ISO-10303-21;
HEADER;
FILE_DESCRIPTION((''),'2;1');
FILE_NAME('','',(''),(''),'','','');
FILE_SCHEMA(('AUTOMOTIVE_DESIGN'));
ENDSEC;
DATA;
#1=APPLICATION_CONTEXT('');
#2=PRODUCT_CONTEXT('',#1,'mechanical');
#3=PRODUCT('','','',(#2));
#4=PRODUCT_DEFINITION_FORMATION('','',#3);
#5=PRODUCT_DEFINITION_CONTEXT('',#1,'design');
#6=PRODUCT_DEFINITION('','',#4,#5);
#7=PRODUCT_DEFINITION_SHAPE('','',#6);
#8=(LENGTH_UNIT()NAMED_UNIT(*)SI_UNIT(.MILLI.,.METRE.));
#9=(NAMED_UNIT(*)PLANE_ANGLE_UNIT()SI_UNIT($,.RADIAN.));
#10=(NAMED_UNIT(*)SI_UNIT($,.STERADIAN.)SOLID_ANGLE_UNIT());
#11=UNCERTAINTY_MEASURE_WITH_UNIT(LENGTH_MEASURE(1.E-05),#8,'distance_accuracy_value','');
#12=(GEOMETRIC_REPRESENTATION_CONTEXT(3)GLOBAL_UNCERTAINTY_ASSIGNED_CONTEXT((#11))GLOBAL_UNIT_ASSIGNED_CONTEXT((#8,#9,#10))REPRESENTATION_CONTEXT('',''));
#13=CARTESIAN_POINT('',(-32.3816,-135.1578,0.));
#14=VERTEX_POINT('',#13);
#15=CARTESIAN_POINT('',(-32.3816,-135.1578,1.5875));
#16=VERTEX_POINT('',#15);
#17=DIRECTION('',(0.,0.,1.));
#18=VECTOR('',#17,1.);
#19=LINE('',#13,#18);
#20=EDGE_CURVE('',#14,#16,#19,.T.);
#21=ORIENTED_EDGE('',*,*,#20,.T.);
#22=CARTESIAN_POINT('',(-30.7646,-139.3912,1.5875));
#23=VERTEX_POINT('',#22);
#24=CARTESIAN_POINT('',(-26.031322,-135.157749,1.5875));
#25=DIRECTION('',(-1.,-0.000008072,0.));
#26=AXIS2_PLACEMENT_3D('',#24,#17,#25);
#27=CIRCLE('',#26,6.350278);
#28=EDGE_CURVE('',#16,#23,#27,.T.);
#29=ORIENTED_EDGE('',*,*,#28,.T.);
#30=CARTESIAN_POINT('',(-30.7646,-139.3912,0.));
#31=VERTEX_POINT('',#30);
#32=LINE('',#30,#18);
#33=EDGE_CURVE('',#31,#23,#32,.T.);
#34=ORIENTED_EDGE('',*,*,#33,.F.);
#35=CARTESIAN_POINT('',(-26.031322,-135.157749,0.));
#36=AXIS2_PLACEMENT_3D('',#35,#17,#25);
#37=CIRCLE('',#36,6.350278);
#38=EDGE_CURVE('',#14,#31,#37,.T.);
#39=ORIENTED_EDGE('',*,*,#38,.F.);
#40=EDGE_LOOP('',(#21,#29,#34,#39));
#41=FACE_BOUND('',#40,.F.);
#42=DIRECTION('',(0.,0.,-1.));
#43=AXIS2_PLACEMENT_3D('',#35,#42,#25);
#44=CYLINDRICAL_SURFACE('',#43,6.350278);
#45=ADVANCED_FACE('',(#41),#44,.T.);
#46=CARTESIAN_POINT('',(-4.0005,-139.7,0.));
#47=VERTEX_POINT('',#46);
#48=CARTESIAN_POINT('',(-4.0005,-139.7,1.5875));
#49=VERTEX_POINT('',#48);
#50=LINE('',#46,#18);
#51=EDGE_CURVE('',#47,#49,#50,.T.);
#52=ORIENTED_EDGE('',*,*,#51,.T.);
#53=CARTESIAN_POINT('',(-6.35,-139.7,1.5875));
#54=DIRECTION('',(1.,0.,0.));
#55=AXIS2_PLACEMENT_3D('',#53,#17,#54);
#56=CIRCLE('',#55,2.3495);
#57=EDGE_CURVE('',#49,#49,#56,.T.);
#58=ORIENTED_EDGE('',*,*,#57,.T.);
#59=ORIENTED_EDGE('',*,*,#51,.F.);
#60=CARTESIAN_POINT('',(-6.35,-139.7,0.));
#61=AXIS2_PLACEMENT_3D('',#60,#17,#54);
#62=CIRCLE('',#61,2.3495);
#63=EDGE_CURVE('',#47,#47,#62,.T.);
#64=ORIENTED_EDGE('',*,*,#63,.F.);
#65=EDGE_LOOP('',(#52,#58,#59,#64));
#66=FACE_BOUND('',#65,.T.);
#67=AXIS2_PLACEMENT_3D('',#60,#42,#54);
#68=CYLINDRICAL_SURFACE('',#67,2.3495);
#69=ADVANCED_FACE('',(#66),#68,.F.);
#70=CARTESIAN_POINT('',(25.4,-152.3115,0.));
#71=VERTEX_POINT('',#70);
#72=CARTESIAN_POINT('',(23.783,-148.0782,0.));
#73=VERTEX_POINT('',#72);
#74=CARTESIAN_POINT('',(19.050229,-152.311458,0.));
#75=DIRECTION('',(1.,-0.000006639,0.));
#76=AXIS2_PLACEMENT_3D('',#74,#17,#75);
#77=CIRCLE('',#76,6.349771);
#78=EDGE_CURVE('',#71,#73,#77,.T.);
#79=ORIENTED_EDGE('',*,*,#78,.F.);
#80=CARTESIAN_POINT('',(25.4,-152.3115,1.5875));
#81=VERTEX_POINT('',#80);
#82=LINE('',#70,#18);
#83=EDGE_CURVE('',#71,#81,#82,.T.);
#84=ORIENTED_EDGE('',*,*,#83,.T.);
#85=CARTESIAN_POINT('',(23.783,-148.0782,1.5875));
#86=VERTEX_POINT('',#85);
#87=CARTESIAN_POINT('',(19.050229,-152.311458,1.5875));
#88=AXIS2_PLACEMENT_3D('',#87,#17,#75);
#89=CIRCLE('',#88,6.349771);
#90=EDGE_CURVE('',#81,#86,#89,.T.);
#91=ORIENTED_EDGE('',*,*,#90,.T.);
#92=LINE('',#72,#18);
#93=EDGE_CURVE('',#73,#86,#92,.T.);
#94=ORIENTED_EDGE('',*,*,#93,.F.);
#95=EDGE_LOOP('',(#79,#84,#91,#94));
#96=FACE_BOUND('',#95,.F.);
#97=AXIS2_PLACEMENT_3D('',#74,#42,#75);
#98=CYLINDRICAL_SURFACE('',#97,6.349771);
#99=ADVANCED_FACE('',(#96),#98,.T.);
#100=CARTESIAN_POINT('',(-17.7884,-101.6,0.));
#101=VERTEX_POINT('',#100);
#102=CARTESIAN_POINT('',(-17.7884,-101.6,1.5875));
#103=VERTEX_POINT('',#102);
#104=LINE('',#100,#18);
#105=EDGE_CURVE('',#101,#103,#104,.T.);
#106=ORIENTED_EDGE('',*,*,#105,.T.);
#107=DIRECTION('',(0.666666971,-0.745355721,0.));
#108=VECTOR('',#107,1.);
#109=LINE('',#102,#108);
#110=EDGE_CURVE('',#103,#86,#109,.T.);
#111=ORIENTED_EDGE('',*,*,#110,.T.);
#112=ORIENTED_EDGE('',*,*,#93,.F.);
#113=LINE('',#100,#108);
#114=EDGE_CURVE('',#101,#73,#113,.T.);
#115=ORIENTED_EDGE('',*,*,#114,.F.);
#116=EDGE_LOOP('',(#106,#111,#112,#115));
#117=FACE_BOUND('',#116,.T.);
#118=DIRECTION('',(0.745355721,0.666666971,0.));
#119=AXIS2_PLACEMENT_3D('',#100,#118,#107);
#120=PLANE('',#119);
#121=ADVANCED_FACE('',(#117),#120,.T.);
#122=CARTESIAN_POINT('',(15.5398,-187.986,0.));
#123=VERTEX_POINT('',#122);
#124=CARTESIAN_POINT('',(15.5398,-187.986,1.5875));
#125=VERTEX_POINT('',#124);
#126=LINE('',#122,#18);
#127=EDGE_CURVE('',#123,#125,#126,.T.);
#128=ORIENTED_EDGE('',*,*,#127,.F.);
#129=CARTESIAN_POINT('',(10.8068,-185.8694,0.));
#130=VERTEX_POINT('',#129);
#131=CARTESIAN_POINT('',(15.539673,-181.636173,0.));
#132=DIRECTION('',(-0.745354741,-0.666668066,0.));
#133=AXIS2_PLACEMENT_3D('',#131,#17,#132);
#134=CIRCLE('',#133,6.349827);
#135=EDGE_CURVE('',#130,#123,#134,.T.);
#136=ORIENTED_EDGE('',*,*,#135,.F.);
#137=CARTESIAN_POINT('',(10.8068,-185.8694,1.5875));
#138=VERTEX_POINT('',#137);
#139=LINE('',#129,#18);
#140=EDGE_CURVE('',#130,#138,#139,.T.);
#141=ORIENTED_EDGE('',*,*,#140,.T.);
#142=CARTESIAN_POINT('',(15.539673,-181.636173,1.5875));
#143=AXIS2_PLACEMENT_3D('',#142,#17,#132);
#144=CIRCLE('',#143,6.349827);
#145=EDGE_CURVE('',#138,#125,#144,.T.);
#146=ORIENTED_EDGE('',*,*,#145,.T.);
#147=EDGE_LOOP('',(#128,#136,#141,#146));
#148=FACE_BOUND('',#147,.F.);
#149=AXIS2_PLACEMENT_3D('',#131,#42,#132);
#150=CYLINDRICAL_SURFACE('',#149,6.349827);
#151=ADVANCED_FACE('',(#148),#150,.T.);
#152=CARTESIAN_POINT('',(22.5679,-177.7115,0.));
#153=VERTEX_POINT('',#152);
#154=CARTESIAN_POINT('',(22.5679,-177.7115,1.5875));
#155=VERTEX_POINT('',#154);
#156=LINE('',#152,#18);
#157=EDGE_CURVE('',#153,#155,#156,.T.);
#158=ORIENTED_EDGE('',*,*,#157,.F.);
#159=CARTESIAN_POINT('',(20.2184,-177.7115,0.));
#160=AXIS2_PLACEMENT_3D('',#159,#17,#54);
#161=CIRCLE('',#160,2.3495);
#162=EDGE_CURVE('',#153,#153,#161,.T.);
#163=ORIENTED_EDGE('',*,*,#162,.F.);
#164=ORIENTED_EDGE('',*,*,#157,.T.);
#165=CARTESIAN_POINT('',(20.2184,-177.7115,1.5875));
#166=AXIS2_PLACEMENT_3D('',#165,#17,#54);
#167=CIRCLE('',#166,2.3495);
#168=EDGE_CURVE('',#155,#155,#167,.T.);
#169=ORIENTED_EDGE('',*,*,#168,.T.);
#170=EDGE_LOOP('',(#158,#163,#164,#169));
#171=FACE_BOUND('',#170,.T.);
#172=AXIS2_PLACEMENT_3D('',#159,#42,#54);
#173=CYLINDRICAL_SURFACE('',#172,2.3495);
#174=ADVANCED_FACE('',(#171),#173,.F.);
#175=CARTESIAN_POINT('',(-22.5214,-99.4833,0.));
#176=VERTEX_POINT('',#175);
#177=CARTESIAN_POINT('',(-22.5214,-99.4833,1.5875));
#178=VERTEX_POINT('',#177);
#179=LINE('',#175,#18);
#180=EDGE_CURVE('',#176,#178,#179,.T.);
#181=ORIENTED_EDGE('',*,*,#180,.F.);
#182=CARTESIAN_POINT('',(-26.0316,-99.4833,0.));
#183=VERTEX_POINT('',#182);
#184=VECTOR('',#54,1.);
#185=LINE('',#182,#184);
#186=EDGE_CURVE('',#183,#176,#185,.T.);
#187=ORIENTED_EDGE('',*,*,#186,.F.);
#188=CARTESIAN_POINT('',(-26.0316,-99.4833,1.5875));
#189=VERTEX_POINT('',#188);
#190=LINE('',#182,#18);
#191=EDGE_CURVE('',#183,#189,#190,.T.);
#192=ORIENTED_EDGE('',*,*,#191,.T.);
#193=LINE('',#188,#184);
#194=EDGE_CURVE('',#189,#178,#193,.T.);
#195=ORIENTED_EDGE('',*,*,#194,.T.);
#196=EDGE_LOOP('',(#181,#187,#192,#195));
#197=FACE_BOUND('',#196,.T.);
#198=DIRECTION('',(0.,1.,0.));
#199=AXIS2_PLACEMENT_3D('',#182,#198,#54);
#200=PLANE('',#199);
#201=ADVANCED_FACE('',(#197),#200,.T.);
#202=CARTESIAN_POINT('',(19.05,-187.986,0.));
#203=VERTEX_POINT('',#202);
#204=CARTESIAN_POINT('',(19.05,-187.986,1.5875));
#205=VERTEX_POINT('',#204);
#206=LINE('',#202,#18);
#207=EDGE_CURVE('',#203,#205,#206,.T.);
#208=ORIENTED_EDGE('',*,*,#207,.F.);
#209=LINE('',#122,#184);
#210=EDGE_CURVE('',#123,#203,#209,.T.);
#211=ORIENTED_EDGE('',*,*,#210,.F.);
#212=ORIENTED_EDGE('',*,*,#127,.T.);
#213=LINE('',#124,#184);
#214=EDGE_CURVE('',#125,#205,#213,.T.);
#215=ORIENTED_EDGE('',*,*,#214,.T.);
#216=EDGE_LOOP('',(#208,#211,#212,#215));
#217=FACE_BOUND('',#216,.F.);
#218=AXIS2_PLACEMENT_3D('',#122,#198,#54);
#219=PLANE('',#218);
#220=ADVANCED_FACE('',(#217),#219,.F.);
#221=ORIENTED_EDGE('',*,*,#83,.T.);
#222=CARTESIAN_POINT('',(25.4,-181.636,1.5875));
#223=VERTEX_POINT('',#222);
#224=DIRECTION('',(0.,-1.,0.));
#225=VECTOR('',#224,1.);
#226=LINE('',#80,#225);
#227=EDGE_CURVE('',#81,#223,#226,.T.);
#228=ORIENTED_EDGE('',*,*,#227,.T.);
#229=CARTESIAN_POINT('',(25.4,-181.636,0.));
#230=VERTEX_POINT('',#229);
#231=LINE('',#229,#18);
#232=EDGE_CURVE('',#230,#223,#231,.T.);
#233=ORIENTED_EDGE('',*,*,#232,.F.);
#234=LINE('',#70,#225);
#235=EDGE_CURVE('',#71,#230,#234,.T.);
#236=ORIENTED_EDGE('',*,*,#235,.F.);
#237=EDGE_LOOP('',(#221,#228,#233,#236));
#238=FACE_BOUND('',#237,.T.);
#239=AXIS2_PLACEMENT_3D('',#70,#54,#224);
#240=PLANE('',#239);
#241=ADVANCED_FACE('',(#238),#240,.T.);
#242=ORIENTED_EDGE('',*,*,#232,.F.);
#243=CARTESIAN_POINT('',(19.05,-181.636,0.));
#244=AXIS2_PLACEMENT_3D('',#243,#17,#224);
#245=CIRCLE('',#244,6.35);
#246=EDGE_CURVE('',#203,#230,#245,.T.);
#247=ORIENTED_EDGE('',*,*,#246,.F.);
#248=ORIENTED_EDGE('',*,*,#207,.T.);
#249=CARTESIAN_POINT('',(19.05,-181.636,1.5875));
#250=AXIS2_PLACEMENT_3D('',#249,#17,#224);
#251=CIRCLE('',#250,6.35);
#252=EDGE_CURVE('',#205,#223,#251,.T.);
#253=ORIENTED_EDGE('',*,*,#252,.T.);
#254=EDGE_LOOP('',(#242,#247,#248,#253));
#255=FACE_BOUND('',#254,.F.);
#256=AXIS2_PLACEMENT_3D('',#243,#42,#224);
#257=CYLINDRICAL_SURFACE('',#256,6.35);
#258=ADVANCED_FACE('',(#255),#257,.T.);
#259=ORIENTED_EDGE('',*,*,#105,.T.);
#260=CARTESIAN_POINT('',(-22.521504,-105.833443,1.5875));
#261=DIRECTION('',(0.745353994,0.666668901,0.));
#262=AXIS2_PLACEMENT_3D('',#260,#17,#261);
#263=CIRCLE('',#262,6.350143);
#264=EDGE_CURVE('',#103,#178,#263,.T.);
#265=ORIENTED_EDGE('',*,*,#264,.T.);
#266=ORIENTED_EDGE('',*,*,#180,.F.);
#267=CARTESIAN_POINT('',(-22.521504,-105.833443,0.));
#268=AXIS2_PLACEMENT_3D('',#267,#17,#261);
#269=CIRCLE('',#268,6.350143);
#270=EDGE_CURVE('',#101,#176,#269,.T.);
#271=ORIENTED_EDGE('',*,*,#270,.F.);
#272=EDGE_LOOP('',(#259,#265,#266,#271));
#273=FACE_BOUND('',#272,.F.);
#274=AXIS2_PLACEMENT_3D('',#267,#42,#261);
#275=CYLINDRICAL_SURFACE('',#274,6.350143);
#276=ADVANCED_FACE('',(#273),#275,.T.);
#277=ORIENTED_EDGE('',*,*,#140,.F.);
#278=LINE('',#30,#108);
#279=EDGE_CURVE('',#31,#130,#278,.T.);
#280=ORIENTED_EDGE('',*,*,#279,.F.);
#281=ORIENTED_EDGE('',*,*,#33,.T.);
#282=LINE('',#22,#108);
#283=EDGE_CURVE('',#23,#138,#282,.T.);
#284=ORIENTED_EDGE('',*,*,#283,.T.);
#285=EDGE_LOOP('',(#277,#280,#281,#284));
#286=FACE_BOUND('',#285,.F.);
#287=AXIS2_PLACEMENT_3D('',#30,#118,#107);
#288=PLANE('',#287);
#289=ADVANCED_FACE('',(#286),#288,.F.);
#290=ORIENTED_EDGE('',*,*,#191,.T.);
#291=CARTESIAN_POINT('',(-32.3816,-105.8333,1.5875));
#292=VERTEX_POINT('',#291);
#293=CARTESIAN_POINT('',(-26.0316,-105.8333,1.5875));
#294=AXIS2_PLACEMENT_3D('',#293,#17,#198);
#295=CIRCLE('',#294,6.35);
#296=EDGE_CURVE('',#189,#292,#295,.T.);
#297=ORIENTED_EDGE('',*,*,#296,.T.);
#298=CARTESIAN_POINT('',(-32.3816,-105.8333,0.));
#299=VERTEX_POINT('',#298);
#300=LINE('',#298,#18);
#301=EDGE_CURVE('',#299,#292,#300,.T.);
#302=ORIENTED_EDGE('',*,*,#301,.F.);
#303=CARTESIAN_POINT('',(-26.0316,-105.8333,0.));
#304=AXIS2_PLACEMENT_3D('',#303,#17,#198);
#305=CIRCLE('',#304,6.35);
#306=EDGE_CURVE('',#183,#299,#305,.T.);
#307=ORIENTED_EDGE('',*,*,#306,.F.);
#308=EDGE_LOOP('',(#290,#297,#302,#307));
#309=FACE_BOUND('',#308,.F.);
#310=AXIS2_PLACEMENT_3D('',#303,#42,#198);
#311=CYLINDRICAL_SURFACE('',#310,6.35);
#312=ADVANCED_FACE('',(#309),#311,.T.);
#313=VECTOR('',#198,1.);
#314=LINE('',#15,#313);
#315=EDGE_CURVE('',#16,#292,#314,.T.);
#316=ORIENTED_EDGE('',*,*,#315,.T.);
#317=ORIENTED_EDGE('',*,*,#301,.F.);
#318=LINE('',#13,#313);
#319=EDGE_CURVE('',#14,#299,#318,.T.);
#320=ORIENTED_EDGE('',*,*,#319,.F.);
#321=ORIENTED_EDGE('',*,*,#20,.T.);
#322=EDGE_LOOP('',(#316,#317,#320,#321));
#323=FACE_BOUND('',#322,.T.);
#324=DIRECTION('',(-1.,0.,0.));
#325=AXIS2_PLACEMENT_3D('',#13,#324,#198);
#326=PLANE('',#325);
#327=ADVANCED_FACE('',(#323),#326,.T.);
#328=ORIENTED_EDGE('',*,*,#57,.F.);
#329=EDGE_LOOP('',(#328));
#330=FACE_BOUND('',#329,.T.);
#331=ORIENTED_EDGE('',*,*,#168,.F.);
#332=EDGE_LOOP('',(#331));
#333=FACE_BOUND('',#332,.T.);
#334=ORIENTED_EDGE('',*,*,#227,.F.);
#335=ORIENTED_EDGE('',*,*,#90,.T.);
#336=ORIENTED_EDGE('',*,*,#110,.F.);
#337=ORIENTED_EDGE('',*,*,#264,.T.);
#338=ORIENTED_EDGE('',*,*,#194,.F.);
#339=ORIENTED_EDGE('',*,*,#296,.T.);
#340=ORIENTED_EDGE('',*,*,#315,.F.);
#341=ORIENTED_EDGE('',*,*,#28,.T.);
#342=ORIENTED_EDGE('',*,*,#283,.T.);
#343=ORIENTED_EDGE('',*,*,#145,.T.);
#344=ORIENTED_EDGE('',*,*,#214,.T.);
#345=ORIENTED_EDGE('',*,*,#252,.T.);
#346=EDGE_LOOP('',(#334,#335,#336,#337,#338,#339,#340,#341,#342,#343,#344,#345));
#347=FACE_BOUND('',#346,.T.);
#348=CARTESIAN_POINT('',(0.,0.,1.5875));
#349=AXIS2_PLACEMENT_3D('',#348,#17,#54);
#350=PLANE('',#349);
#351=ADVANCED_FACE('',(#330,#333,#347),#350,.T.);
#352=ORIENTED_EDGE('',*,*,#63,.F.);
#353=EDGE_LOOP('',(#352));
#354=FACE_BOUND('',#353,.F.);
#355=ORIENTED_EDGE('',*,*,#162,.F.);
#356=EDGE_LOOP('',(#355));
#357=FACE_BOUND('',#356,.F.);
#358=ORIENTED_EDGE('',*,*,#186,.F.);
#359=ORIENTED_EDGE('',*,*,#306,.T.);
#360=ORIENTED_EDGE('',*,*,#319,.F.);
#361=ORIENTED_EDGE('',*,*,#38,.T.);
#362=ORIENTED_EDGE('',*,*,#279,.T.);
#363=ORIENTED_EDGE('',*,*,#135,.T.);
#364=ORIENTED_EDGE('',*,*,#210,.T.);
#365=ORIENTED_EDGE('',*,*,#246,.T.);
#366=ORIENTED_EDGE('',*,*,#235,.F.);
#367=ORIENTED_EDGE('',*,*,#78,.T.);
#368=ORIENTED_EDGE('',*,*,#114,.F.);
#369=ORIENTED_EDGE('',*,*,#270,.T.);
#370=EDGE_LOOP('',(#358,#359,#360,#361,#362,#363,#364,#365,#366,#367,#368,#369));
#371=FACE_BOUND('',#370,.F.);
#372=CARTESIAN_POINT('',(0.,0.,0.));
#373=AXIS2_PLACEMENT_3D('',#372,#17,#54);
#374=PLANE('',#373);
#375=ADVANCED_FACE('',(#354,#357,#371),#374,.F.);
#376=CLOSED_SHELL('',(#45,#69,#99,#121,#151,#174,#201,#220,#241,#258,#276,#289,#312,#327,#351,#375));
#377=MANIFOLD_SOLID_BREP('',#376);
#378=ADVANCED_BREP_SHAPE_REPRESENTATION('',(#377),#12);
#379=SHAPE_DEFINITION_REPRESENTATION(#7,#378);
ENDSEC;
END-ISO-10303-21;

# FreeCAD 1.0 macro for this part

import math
import FreeCAD as App
import Part
import Sketcher
from FreeCAD import Vector
Q = App.Units.Quantity

doc = App.newDocument("Part")
body = doc.addObject("PartDesign::Body", "Body")

# Sketch on XY plane
sketch1 = body.newObject("Sketcher::SketchObject", "Sketch")
sketch1.AttachmentSupport = (doc.getObject("XY_Plane"), [""])
sketch1.MapMode = "FlatFace"
sketch1.addGeometry(Part.ArcOfCircle(Part.Circle(Vector(-26, -135.2, 0), Vector(0, 0, 1), 6.3), math.radians(180), math.radians(222)), False)
sketch1.addGeometry(Part.LineSegment(Vector(-30.8, -139.4, 0), Vector(10.8, -185.9, 0)), False)
sketch1.addGeometry(Part.ArcOfCircle(Part.Circle(Vector(15.5, -181.6, 0), Vector(0, 0, 1), 6.4), math.radians(-138), math.radians(-90)), False)
sketch1.addGeometry(Part.LineSegment(Vector(15.5, -188, 0), Vector(19.1, -188, 0)), False)
sketch1.addGeometry(Part.ArcOfCircle(Part.Circle(Vector(19.1, -181.6, 0), Vector(0, 0, 1), 6.3), math.radians(-90), math.radians(0)), False)
sketch1.addGeometry(Part.LineSegment(Vector(25.4, -181.6, 0), Vector(25.4, -152.3, 0)), False)
sketch1.addGeometry(Part.ArcOfCircle(Part.Circle(Vector(19.1, -152.3, 0), Vector(0, 0, 1), 6.3), math.radians(0), math.radians(42)), False)
sketch1.addGeometry(Part.LineSegment(Vector(23.8, -148.1, 0), Vector(-17.8, -101.6, 0)), False)
sketch1.addGeometry(Part.ArcOfCircle(Part.Circle(Vector(-22.5, -105.8, 0), Vector(0, 0, 1), 6.3), math.radians(42), math.radians(90)), False)
sketch1.addGeometry(Part.LineSegment(Vector(-22.5, -99.5, 0), Vector(-26, -99.5, 0)), False)
sketch1.addGeometry(Part.ArcOfCircle(Part.Circle(Vector(-26, -105.8, 0), Vector(0, 0, 1), 6.3), math.radians(90), math.radians(180)), False)
sketch1.addGeometry(Part.LineSegment(Vector(-32.4, -105.8, 0), Vector(-32.4, -135.2, 0)), False)
sketch1.addGeometry(Part.Circle(Vector(20.2, -177.7, 0), Vector(0, 0, 1), 2.3), False)
sketch1.addGeometry(Part.Circle(Vector(-6.3, -139.7, 0), Vector(0, 0, 1), 2.3), False)
sketch1.addConstraint(Sketcher.Constraint("Tangent", 0, 2, 1, 1))
sketch1.addConstraint(Sketcher.Constraint("Tangent", 1, 2, 2, 1))
sketch1.addConstraint(Sketcher.Constraint("Tangent", 2, 2, 3, 1))
sketch1.addConstraint(Sketcher.Constraint("Tangent", 3, 2, 4, 1))
sketch1.addConstraint(Sketcher.Constraint("Tangent", 4, 2, 5, 1))
sketch1.addConstraint(Sketcher.Constraint("Tangent", 5, 2, 6, 1))
sketch1.addConstraint(Sketcher.Constraint("Tangent", 6, 2, 7, 1))
sketch1.addConstraint(Sketcher.Constraint("Tangent", 7, 2, 8, 1))
sketch1.addConstraint(Sketcher.Constraint("Tangent", 8, 2, 9, 1))
sketch1.addConstraint(Sketcher.Constraint("Tangent", 9, 2, 10, 1))
sketch1.addConstraint(Sketcher.Constraint("Tangent", 10, 2, 11, 1))
sketch1.addConstraint(Sketcher.Constraint("Tangent", 11, 2, 0, 1))
sketch1.addConstraint(Sketcher.Constraint("Horizontal", 3))
sketch1.addConstraint(Sketcher.Constraint("Vertical", 5))
sketch1.addConstraint(Sketcher.Constraint("Horizontal", 9))
sketch1.addConstraint(Sketcher.Constraint("Vertical", 11))
sketch1.addConstraint(Sketcher.Constraint("Equal", 0, 2))
sketch1.addConstraint(Sketcher.Constraint("Equal", 2, 4))
sketch1.addConstraint(Sketcher.Constraint("Equal", 4, 6))
sketch1.addConstraint(Sketcher.Constraint("Equal", 6, 8))
sketch1.addConstraint(Sketcher.Constraint("Equal", 8, 10))
sketch1.addConstraint(Sketcher.Constraint("Equal", 12, 13))
sketch1.addConstraint(Sketcher.Constraint("Parallel", 1, 7))
sketch1.addConstraint(Sketcher.Constraint("Equal", 3, 9))
sketch1.addConstraint(Sketcher.Constraint("Radius", 0, Q("0.25 in")))
sketch1.addConstraint(Sketcher.Constraint("Diameter", 12, Q("0.185 in")))
sketch1.addConstraint(Sketcher.Constraint("DistanceX", -1, 1, 4, 2, Q("1 in")))
sketch1.addConstraint(Sketcher.Constraint("DistanceY", 7, 2, -1, 1, Q("4 in")))
sketch1.addConstraint(Sketcher.Constraint("DistanceY", 12, 3, 6, 3, Q("1 in")))
sketch1.addConstraint(Sketcher.Constraint("DistanceX", 13, 3, 6, 3, Q("1 in")))
sketch1.addConstraint(Sketcher.Constraint("DistanceY", 13, 3, -1, 1, Q("5.5 in")))
sketch1.addConstraint(Sketcher.Constraint("Angle", 1, Q("-48.1897 deg")))
sketch1.addConstraint(Sketcher.Constraint("Distance", 1, Q("2.455 in")))
sketch1.addConstraint(Sketcher.Constraint("DistanceX", 3, 1, 3, 2, Q("0.1382 in")))
sketch1.addConstraint(Sketcher.Constraint("DistanceY", 5, 1, 5, 2, Q("1.1545 in")))
sketch1.addConstraint(Sketcher.Constraint("DistanceX", -1, 1, 12, 3, Q("0.796 in")))
pad1 = body.newObject("PartDesign::Pad", "Pad")
pad1.Profile = sketch1
pad1.Length = Q("0.0625 in")

doc.recompute()
